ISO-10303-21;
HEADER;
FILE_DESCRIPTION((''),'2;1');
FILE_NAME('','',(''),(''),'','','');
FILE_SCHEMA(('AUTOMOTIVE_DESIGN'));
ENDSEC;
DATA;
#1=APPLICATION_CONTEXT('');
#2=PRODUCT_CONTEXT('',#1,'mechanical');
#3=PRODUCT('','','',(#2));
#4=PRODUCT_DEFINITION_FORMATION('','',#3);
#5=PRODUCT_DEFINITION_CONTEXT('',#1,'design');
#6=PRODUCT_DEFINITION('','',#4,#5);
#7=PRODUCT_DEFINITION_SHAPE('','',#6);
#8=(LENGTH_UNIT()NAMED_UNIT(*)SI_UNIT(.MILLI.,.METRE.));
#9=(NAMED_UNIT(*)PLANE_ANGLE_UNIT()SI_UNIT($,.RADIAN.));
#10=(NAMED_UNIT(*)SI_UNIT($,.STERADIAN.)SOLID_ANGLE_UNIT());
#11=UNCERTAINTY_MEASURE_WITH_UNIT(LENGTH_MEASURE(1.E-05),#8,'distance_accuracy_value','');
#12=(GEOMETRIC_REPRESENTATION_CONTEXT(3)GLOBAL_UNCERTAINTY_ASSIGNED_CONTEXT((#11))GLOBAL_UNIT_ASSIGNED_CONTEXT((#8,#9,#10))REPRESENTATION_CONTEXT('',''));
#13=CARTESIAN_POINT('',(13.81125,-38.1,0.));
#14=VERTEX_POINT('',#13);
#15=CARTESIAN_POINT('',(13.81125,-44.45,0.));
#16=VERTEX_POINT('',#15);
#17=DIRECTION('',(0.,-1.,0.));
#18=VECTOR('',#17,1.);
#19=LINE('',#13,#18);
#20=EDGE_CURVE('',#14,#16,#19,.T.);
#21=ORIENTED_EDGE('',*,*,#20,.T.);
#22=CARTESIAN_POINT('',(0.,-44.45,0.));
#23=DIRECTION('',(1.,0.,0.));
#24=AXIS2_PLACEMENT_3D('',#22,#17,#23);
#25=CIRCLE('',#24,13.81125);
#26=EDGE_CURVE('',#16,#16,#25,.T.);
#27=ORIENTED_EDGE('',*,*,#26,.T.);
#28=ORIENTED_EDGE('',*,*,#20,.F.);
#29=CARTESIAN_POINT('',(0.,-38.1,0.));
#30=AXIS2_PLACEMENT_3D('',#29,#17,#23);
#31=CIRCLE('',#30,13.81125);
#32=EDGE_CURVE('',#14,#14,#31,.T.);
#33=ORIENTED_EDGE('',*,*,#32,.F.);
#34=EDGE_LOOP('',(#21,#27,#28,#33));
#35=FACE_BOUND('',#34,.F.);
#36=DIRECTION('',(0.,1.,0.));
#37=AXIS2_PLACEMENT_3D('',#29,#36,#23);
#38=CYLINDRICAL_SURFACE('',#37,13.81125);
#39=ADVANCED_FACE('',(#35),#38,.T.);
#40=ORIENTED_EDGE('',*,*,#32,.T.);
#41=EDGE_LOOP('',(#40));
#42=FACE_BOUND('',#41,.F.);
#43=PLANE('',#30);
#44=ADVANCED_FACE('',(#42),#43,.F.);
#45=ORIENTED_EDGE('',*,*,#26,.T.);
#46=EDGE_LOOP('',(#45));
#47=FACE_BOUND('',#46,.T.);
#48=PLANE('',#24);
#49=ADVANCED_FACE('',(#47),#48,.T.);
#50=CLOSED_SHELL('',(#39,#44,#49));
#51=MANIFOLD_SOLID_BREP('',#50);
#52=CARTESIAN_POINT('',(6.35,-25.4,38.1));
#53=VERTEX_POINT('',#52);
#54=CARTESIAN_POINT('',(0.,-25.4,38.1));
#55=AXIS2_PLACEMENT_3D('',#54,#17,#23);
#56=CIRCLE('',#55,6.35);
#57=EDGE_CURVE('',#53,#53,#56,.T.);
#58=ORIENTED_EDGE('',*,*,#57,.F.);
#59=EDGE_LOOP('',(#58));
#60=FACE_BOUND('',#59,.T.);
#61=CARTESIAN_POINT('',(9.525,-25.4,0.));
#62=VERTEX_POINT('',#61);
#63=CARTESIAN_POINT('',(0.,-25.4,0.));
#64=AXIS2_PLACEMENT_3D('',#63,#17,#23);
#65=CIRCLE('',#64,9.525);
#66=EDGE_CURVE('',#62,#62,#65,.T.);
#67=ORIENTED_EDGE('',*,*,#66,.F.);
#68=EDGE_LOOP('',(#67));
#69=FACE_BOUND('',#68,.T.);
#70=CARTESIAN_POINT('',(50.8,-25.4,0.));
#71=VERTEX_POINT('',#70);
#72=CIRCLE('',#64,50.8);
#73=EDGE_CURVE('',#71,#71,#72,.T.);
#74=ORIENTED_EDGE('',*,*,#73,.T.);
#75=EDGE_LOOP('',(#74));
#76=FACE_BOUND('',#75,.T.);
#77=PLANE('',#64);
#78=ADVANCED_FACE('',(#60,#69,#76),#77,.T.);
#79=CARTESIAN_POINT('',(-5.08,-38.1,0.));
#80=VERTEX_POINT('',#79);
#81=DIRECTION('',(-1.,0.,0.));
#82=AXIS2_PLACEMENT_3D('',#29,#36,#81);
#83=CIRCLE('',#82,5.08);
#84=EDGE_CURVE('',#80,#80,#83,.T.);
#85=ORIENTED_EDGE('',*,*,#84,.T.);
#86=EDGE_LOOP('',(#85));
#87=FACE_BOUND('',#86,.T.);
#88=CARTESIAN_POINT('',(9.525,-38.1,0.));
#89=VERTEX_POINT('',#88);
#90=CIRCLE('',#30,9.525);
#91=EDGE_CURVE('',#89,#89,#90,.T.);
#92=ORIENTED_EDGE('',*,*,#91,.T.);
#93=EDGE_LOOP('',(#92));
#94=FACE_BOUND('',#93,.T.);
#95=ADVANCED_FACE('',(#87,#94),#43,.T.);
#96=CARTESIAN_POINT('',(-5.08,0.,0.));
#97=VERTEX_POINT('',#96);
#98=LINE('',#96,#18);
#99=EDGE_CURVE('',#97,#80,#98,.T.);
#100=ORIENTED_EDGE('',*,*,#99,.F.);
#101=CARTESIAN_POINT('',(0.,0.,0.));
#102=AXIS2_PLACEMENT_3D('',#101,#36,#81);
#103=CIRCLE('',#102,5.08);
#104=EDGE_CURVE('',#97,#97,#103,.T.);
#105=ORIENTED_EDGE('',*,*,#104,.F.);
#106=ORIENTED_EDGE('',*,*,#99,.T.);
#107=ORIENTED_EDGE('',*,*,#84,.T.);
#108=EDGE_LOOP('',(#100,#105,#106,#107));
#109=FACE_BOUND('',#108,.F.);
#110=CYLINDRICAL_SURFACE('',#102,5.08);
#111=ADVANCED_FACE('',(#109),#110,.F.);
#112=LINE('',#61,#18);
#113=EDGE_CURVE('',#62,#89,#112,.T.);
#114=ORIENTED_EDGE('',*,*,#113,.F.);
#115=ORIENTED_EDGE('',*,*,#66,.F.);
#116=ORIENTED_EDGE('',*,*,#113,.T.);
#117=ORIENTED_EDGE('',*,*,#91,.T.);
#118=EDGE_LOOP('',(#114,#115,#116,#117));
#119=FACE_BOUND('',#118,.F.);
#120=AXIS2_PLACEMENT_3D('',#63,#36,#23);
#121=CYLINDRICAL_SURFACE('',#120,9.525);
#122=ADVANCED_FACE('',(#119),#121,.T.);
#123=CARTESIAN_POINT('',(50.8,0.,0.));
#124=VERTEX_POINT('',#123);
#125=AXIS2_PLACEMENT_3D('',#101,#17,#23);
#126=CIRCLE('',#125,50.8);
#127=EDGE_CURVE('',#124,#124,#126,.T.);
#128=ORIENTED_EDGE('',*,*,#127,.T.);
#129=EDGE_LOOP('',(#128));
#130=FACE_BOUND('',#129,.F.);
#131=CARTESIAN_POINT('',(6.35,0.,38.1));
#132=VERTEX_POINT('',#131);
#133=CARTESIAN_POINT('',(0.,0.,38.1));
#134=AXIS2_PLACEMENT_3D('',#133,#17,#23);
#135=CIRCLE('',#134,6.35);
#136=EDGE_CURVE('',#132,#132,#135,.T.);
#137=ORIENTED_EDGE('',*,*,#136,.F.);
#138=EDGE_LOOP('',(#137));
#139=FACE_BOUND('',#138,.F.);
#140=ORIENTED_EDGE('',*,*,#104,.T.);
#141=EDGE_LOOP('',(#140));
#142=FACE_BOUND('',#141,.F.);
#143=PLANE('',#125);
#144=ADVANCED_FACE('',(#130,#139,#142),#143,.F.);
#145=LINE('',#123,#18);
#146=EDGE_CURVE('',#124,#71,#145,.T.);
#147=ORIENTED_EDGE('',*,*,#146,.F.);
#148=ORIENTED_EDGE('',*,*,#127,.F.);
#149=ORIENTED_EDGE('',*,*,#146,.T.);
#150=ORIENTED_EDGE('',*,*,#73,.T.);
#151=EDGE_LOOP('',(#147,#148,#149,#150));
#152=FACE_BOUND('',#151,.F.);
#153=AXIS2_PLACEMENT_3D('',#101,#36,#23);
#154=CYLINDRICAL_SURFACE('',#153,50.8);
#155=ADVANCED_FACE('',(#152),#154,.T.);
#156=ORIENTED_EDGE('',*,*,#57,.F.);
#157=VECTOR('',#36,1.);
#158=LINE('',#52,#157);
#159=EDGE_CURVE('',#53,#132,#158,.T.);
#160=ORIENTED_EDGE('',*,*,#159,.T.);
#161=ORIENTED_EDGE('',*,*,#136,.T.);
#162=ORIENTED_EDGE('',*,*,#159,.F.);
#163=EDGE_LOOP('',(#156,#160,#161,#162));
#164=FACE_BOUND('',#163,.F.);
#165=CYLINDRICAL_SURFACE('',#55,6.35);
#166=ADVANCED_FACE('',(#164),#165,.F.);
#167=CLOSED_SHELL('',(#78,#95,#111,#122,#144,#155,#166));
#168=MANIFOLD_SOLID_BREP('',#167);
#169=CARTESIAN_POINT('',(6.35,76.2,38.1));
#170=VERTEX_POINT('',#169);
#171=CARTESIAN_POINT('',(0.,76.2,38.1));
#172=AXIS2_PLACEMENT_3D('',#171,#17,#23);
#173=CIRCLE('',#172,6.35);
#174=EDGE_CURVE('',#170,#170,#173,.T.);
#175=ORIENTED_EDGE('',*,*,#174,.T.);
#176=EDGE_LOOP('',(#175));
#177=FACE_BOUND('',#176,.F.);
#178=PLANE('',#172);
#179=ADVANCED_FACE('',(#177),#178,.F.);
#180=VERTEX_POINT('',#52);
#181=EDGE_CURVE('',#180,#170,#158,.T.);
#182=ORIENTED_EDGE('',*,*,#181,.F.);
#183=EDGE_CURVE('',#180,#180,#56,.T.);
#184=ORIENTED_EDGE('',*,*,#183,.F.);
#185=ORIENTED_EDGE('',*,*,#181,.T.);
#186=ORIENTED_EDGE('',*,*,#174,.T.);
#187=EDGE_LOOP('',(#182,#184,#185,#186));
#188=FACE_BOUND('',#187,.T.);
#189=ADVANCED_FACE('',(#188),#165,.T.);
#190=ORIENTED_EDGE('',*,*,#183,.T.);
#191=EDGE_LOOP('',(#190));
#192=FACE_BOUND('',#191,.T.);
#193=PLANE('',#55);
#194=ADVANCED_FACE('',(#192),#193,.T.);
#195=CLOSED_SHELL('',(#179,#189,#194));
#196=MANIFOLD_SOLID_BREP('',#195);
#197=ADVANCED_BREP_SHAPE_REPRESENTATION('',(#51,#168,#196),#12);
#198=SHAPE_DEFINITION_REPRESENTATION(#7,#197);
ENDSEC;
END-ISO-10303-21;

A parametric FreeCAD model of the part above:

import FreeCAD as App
import Part
import Sketcher
from FreeCAD import Vector
Q = App.Units.Quantity

doc = App.newDocument("Part")
params = doc.addObject("Spreadsheet::Sheet", "Params")
for row, (alias, value) in enumerate([
    ("sketch1_diameter", "4 in"),
    ("pad1_length", "1 in"),
    ("sketch2_diameter", "0.75 in"),
    ("pad2_length", "0.5 in"),
    ("sketch3_diameter", "0.4 in"),
    ("pocket1_length", "2 in"),
    ("sketch4_diameter", "0.5 in"),
    ("pocket2_length", "1 in"),
    ("sketch5_diameter", "0.5 in"),
    ("pad3_length", "4 in"),
    ("pad4_length", "0.25 in"),
], start=1):
    params.set(f"A{row}", alias)
    params.set(f"B{row}", "=" + value)
    params.setAlias(f"B{row}", alias)

body = doc.addObject("PartDesign::Body", "Body")

# Sketch on XZ plane
sketch1 = body.newObject("Sketcher::SketchObject", "Sketch")
sketch1.AttachmentSupport = (doc.getObject("XZ_Plane"), [""])
sketch1.MapMode = "FlatFace"
sketch1.addGeometry(Part.Circle(Vector(0, 0, 0), Vector(0, 0, 1), 50.8), False)
sketch1.addConstraint([
    Sketcher.Constraint("Coincident", 0, 3, -1, 1),
    Sketcher.Constraint("Diameter", 0, Q("4 in")),
])
sketch1.setExpression("Constraints[1]", "Params.sketch1_diameter")
pad1 = body.newObject("PartDesign::Pad", "Pad")
pad1.Profile = sketch1
pad1.setExpression("Length", "Params.pad1_length")

# Sketch on XZ plane
sketch2 = body.newObject("Sketcher::SketchObject", "Sketch001")
sketch2.AttachmentSupport = (doc.getObject("XZ_Plane"), [""])
sketch2.MapMode = "FlatFace"
sketch2.AttachmentOffset = App.Placement(Vector(0, 0, 1 * 25.4), App.Rotation())
sketch2.addGeometry(Part.Circle(Vector(0, 0, 0), Vector(0, 0, 1), 9.525), False)
sketch2.addConstraint([
    Sketcher.Constraint("Coincident", 0, 3, -1, 1),
    Sketcher.Constraint("Diameter", 0, Q("0.75 in")),
])
sketch2.setExpression("Constraints[1]", "Params.sketch2_diameter")
pad2 = body.newObject("PartDesign::Pad", "Pad001")
pad2.Profile = sketch2
pad2.setExpression("Length", "Params.pad2_length")

# Sketch on XZ plane
sketch3 = body.newObject("Sketcher::SketchObject", "Sketch002")
sketch3.AttachmentSupport = (doc.getObject("XZ_Plane"), [""])
sketch3.MapMode = "FlatFace"
sketch3.addGeometry(Part.Circle(Vector(0, 0, 0), Vector(0, 0, 1), 5.08), False)
sketch3.addConstraint([
    Sketcher.Constraint("Coincident", 0, 3, -1, 1),
    Sketcher.Constraint("Diameter", 0, Q("0.4 in")),
])
sketch3.setExpression("Constraints[1]", "Params.sketch3_diameter")
pocket1 = body.newObject("PartDesign::Pocket", "Pocket")
pocket1.Profile = sketch3
pocket1.setExpression("Length", "Params.pocket1_length")
pocket1.Reversed = True

# Sketch on XZ plane
sketch4 = body.newObject("Sketcher::SketchObject", "Sketch003")
sketch4.AttachmentSupport = (doc.getObject("XZ_Plane"), [""])
sketch4.MapMode = "FlatFace"
sketch4.AttachmentOffset = App.Placement(Vector(0, 0, 1 * 25.4), App.Rotation())
sketch4.addGeometry(Part.Circle(Vector(0, 38.1, 0), Vector(0, 0, 1), 6.35), False)
sketch4.addConstraint([
    Sketcher.Constraint("PointOnObject", 0, 3, -2),
    Sketcher.Constraint("Diameter", 0, Q("0.5 in")),
    Sketcher.Constraint("DistanceY", -1, 1, 0, 3, Q("1.5 in")),
])
sketch4.setExpression("Constraints[1]", "Params.sketch4_diameter")
pocket2 = body.newObject("PartDesign::Pocket", "Pocket001")
pocket2.Profile = sketch4
pocket2.setExpression("Length", "Params.pocket2_length")
body2 = doc.addObject("PartDesign::Body", "Body001")

# Sketch on XZ plane
sketch5 = body2.newObject("Sketcher::SketchObject", "Sketch004")
sketch5.AttachmentSupport = (doc.getObject("XZ_Plane001"), [""])
sketch5.MapMode = "FlatFace"
sketch5.AttachmentOffset = App.Placement(Vector(0, 0, 1 * 25.4), App.Rotation())
sketch5.addGeometry(Part.Circle(Vector(0, 38.1, 0), Vector(0, 0, 1), 6.35), False)
sketch5.addConstraint([
    Sketcher.Constraint("PointOnObject", 0, 3, -2),
    Sketcher.Constraint("Diameter", 0, Q("0.5 in")),
    Sketcher.Constraint("DistanceY", -1, 1, 0, 3, Q("1.5 in")),
])
sketch5.setExpression("Constraints[1]", "Params.sketch5_diameter")
pad3 = body2.newObject("PartDesign::Pad", "Pad002")
pad3.Profile = sketch5
pad3.setExpression("Length", "Params.pad3_length")
pad3.Reversed = True
body3 = doc.addObject("PartDesign::Body", "Body002")

# Sketch on XZ plane
sketch6 = body3.newObject("Sketcher::SketchObject", "Sketch005")
sketch6.AttachmentSupport = (doc.getObject("XZ_Plane002"), [""])
sketch6.MapMode = "FlatFace"
sketch6.AttachmentOffset = App.Placement(Vector(0, 0, 1.5 * 25.4), App.Rotation())
sketch6.addGeometry(Part.Circle(Vector(0, 0, 0), Vector(0, 0, 1), 13.81125), False)
sketch6.addConstraint([
    Sketcher.Constraint("Coincident", 0, 3, -1, 1),
    Sketcher.Constraint("Diameter", 0, Q("1.0875 in")),
])
pad4 = body3.newObject("PartDesign::Pad", "Pad003")
pad4.Profile = sketch6
pad4.setExpression("Length", "Params.pad4_length")

doc.recompute()
